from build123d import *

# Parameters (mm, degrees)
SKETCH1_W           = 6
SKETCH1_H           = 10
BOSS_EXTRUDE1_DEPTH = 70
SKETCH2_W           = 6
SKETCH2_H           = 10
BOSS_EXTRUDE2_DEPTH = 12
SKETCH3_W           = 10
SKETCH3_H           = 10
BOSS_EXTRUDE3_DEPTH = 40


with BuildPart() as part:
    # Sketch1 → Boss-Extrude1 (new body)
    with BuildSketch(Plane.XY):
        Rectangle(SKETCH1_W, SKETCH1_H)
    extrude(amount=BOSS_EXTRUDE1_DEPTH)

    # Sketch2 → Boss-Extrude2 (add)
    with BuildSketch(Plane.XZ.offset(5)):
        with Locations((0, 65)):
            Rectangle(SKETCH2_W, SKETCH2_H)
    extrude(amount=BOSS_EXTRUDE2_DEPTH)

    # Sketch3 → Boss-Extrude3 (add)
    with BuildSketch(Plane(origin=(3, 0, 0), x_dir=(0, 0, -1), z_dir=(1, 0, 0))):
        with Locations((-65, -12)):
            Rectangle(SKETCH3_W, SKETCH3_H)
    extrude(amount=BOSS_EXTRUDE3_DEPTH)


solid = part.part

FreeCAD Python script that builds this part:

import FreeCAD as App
import Part
import Sketcher
from FreeCAD import Vector
Q = App.Units.Quantity

doc = App.newDocument("Part")
params = doc.addObject("Spreadsheet::Sheet", "Params")
for row, (alias, value) in enumerate([
    ("sketch1_width", "6 mm"),
    ("sketch1_height", "10 mm"),
    ("pad1_length", "70 mm"),
    ("sketch2_width", "6 mm"),
    ("sketch2_height", "10 mm"),
    ("pad2_length", "12 mm"),
    ("sketch3_width", "10 mm"),
    ("pad3_length", "40 mm"),
], start=1):
    params.set(f"A{row}", alias)
    params.set(f"B{row}", "=" + value)
    params.setAlias(f"B{row}", alias)

body = doc.addObject("PartDesign::Body", "Body")

# Sketch on XY plane
sketch1 = body.newObject("Sketcher::SketchObject", "Sketch")
sketch1.AttachmentSupport = (doc.getObject("XY_Plane"), [""])
sketch1.MapMode = "FlatFace"
sketch1.addGeometry(Part.LineSegment(Vector(-3, 5, 0), Vector(-3, -5, 0)), False)
sketch1.addGeometry(Part.LineSegment(Vector(-3, -5, 0), Vector(3, -5, 0)), False)
sketch1.addGeometry(Part.LineSegment(Vector(3, -5, 0), Vector(3, 5, 0)), False)
sketch1.addGeometry(Part.LineSegment(Vector(3, 5, 0), Vector(-3, 5, 0)), False)
sketch1.addConstraint(Sketcher.Constraint("Coincident", 0, 2, 1, 1))
sketch1.addConstraint(Sketcher.Constraint("Coincident", 1, 2, 2, 1))
sketch1.addConstraint(Sketcher.Constraint("Coincident", 2, 2, 3, 1))
sketch1.addConstraint(Sketcher.Constraint("Coincident", 3, 2, 0, 1))
sketch1.addConstraint(Sketcher.Constraint("Vertical", 0))
sketch1.addConstraint(Sketcher.Constraint("Horizontal", 1))
sketch1.addConstraint(Sketcher.Constraint("Vertical", 2))
sketch1.addConstraint(Sketcher.Constraint("Horizontal", 3))
sketch1.addConstraint(Sketcher.Constraint("Symmetric", 0, 2, 2, 2, -1, 1))
sketch1.addConstraint(Sketcher.Constraint("DistanceX", 1, 1, 1, 2, Q("6 mm")))
sketch1.addConstraint(Sketcher.Constraint("DistanceY", 0, 2, 0, 1, Q("10 mm")))
sketch1.setExpression("Constraints[9]", "Params.sketch1_width")
sketch1.setExpression("Constraints[10]", "Params.sketch1_height")
pad1 = body.newObject("PartDesign::Pad", "Pad")
pad1.Profile = sketch1
pad1.setExpression("Length", "Params.pad1_length")

# Sketch on XZ plane
sketch2 = body.newObject("Sketcher::SketchObject", "Sketch001")
sketch2.AttachmentSupport = (doc.getObject("XZ_Plane"), [""])
sketch2.MapMode = "FlatFace"
sketch2.AttachmentOffset = App.Placement(Vector(0, 0, 5), App.Rotation())
sketch2.addGeometry(Part.LineSegment(Vector(-3, 70, 0), Vector(-3, 60, 0)), False)
sketch2.addGeometry(Part.LineSegment(Vector(-3, 60, 0), Vector(3, 60, 0)), False)
sketch2.addGeometry(Part.LineSegment(Vector(3, 60, 0), Vector(3, 70, 0)), False)
sketch2.addGeometry(Part.LineSegment(Vector(3, 70, 0), Vector(-3, 70, 0)), False)
sketch2.addConstraint(Sketcher.Constraint("Coincident", 0, 2, 1, 1))
sketch2.addConstraint(Sketcher.Constraint("Coincident", 1, 2, 2, 1))
sketch2.addConstraint(Sketcher.Constraint("Coincident", 2, 2, 3, 1))
sketch2.addConstraint(Sketcher.Constraint("Coincident", 3, 2, 0, 1))
sketch2.addConstraint(Sketcher.Constraint("Vertical", 0))
sketch2.addConstraint(Sketcher.Constraint("Horizontal", 1))
sketch2.addConstraint(Sketcher.Constraint("Vertical", 2))
sketch2.addConstraint(Sketcher.Constraint("Horizontal", 3))
sketch2.addConstraint(Sketcher.Constraint("DistanceX", 1, 1, 1, 2, Q("6 mm")))
sketch2.addConstraint(Sketcher.Constraint("DistanceY", 0, 2, 0, 1, Q("10 mm")))
sketch2.addConstraint(Sketcher.Constraint("DistanceX", 0, 2, -1, 1, Q("3 mm")))
sketch2.addConstraint(Sketcher.Constraint("DistanceY", -1, 1, 0, 2, Q("60 mm")))
sketch2.setExpression("Constraints[8]", "Params.sketch2_width")
sketch2.setExpression("Constraints[9]", "Params.sketch2_height")
pad2 = body.newObject("PartDesign::Pad", "Pad001")
pad2.Profile = sketch2
pad2.setExpression("Length", "Params.pad2_length")

# Sketch on YZ plane
sketch3 = body.newObject("Sketcher::SketchObject", "Sketch002")
sketch3.AttachmentSupport = (doc.getObject("YZ_Plane"), [""])
sketch3.MapMode = "FlatFace"
sketch3.AttachmentOffset = App.Placement(Vector(0, 0, 3), App.Rotation())
sketch3.addGeometry(Part.LineSegment(Vector(-7, 70, 0), Vector(-17, 70, 0)), False)
sketch3.addGeometry(Part.LineSegment(Vector(-17, 70, 0), Vector(-17, 60, 0)), False)
sketch3.addGeometry(Part.LineSegment(Vector(-17, 60, 0), Vector(-7, 60, 0)), False)
sketch3.addGeometry(Part.LineSegment(Vector(-7, 60, 0), Vector(-7, 70, 0)), False)
sketch3.addConstraint(Sketcher.Constraint("Coincident", 0, 2, 1, 1))
sketch3.addConstraint(Sketcher.Constraint("Coincident", 1, 2, 2, 1))
sketch3.addConstraint(Sketcher.Constraint("Coincident", 2, 2, 3, 1))
sketch3.addConstraint(Sketcher.Constraint("Coincident", 3, 2, 0, 1))
sketch3.addConstraint(Sketcher.Constraint("Horizontal", 0))
sketch3.addConstraint(Sketcher.Constraint("Vertical", 1))
sketch3.addConstraint(Sketcher.Constraint("Horizontal", 2))
sketch3.addConstraint(Sketcher.Constraint("Vertical", 3))
sketch3.addConstraint(Sketcher.Constraint("Equal", 2, 1))
sketch3.addConstraint(Sketcher.Constraint("DistanceX", 0, 2, 0, 1, Q("10 mm")))
sketch3.addConstraint(Sketcher.Constraint("DistanceX", 0, 2, -1, 1, Q("17 mm")))
sketch3.addConstraint(Sketcher.Constraint("DistanceY", -1, 1, 0, 2, Q("70 mm")))
sketch3.setExpression("Constraints[9]", "Params.sketch3_width")
pad3 = body.newObject("PartDesign::Pad", "Pad002")
pad3.Profile = sketch3
pad3.setExpression("Length", "Params.pad3_length")

doc.recompute()
